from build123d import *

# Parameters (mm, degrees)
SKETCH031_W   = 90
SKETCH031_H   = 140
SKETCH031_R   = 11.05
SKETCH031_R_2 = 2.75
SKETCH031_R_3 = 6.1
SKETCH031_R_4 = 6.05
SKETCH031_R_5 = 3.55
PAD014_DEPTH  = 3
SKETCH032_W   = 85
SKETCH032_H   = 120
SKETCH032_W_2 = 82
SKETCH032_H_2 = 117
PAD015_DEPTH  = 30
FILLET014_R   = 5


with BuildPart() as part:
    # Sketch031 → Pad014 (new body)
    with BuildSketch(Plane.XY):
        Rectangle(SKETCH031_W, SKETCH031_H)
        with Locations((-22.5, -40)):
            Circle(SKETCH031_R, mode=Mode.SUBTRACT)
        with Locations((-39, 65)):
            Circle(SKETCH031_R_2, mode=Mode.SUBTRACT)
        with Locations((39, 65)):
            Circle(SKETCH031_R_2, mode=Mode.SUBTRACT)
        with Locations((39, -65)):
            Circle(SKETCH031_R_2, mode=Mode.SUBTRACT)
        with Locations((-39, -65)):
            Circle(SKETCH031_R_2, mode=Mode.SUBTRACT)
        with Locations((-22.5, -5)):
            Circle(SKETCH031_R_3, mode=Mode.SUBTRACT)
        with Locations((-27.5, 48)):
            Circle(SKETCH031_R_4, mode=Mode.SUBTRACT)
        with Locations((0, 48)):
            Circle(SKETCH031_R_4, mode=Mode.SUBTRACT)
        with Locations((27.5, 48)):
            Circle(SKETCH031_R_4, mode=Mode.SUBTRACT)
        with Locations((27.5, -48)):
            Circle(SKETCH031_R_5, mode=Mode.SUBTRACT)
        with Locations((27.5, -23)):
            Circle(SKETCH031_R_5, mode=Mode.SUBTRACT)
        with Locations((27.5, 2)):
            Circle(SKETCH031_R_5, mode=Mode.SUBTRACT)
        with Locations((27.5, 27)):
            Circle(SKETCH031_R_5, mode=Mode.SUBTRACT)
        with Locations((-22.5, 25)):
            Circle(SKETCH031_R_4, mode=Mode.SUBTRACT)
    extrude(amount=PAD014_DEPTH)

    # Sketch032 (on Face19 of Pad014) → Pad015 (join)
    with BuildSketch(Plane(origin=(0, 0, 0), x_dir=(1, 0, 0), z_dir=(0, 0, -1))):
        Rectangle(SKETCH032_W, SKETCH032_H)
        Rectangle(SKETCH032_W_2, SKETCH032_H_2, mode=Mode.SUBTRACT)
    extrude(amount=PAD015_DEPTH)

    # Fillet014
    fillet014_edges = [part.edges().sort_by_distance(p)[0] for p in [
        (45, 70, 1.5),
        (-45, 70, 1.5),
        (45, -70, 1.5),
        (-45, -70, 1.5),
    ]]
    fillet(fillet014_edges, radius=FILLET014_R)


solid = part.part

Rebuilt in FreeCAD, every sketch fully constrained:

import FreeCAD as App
import Part
import Sketcher

V = App.Vector


def edges_at(feature, points):
    """Names of the edges that pass closest to the given points."""
    edges = feature.Shape.Edges
    near = lambda p: min(range(len(edges)), key=lambda i: edges[i].distToShape(Part.Vertex(*p))[0])
    return sorted({f"Edge{near(p) + 1}" for p in points})

doc = App.newDocument("Part")
body = doc.addObject("PartDesign::Body", "Body")

sketch1 = body.newObject("Sketcher::SketchObject", "Sketch")
sketch1.AttachmentSupport = (doc.getObject("XY_Plane"), [""])
sketch1.MapMode = "FlatFace"
sketch1.addGeometry([
    Part.LineSegment(V(-45, 70, 0), V(-45, -70, 0)),
    Part.LineSegment(V(-45, -70, 0), V(45, -70, 0)),
    Part.LineSegment(V(45, -70, 0), V(45, 70, 0)),
    Part.LineSegment(V(45, 70, 0), V(-45, 70, 0)),
    Part.Circle(V(-39, -65, 0), V(0, 0, 1), 2.8),
    Part.Circle(V(-22.5, -40, 0), V(0, 0, 1), 11.1),
    Part.Circle(V(-22.5, -5, 0), V(0, 0, 1), 6.1),
    Part.Circle(V(39, -65, 0), V(0, 0, 1), 2.8),
    Part.Circle(V(27.5, -48, 0), V(0, 0, 1), 3.5),
    Part.Circle(V(27.5, -23, 0), V(0, 0, 1), 3.5),
    Part.Circle(V(-22.5, 25, 0), V(0, 0, 1), 6),
    Part.Circle(V(-27.5, 48, 0), V(0, 0, 1), 6),
    Part.Circle(V(-39, 65, 0), V(0, 0, 1), 2.8),
    Part.Circle(V(27.5, 2, 0), V(0, 0, 1), 3.5),
    Part.Circle(V(27.5, 27, 0), V(0, 0, 1), 3.5),
    Part.Circle(V(0, 48, 0), V(0, 0, 1), 6),
    Part.Circle(V(27.5, 48, 0), V(0, 0, 1), 6),
    Part.Circle(V(39, 65, 0), V(0, 0, 1), 2.8),
], False)
sketch1.addConstraint([
    Sketcher.Constraint("Coincident", 0, 2, 1, 1),
    Sketcher.Constraint("Coincident", 1, 2, 2, 1),
    Sketcher.Constraint("Coincident", 2, 2, 3, 1),
    Sketcher.Constraint("Coincident", 3, 2, 0, 1),
    Sketcher.Constraint("Vertical", 0),
    Sketcher.Constraint("Horizontal", 1),
    Sketcher.Constraint("Vertical", 2),
    Sketcher.Constraint("Horizontal", 3),
    Sketcher.Constraint("Equal", 4, 7),
    Sketcher.Constraint("Equal", 8, 9),
    Sketcher.Constraint("Equal", 10, 11),
    Sketcher.Constraint("Equal", 7, 12),
    Sketcher.Constraint("Equal", 9, 13),
    Sketcher.Constraint("Equal", 13, 14),
    Sketcher.Constraint("Equal", 11, 15),
    Sketcher.Constraint("Equal", 15, 16),
    Sketcher.Constraint("Equal", 12, 17),
    Sketcher.Constraint("Symmetric", 8, 3, 11, 3, -1, 1),
    Sketcher.Constraint("Symmetric", 7, 3, 12, 3, -1, 1),
    Sketcher.Constraint("Symmetric", 4, 3, 17, 3, -1, 1),
    Sketcher.Constraint("Symmetric", 0, 2, 2, 2, -1, 1),
    Sketcher.Constraint("Symmetric", 4, 3, 7, 3, -2),
    Sketcher.Constraint("Symmetric", 11, 3, 16, 3, -2),
    Sketcher.Constraint("PointOnObject", 15, 3, -2),
    Sketcher.Constraint("Horizontal", 11, 3, 15, 3),
    Sketcher.Constraint("Vertical", 5, 3, 6, 3),
    Sketcher.Constraint("Vertical", 8, 3, 9, 3),
    Sketcher.Constraint("Vertical", 6, 3, 10, 3),
    Sketcher.Constraint("Vertical", 9, 3, 13, 3),
    Sketcher.Constraint("Vertical", 13, 3, 14, 3),
    Sketcher.Constraint("Diameter", 4, 5.5),
    Sketcher.Constraint("Diameter", 5, 22.1),
    Sketcher.Constraint("Diameter", 6, 12.2),
    Sketcher.Constraint("Diameter", 8, 7.1),
    Sketcher.Constraint("Diameter", 10, 12.1),
    Sketcher.Constraint("DistanceX", 1, 1, 1, 2, 90.0),
    Sketcher.Constraint("DistanceY", 0, 2, 0, 1, 140.0),
    Sketcher.Constraint("DistanceX", 4, 3, -1, 1, 39.0),
    Sketcher.Constraint("DistanceY", 4, 3, -1, 1, 65.0),
    Sketcher.Constraint("DistanceY", 5, 3, -1, 1, 40.0),
    Sketcher.Constraint("DistanceY", 6, 3, -1, 1, 5.0),
    Sketcher.Constraint("DistanceY", 8, 3, -1, 1, 48.0),
    Sketcher.Constraint("DistanceY", 9, 3, -1, 1, 23.0),
    Sketcher.Constraint("DistanceY", -1, 1, 10, 3, 25.0),
    Sketcher.Constraint("DistanceY", -1, 1, 13, 3, 2.0),
    Sketcher.Constraint("DistanceY", -1, 1, 14, 3, 27.0),
    Sketcher.Constraint("DistanceX", 5, 3, 8, 3, 50.0),
    Sketcher.Constraint("DistanceX", 11, 3, 10, 3, 5.0),
])
pad1 = body.newObject("PartDesign::Pad", "Pad")
pad1.Profile = sketch1
pad1.Length = 3

sketch2 = body.newObject("Sketcher::SketchObject", "Sketch001")
sketch2.AttachmentSupport = (doc.getObject("XY_Plane"), [""])
sketch2.MapMode = "FlatFace"
sketch2.addGeometry([
    Part.LineSegment(V(-42, -60, 0), V(-42, 60, 0)),
    Part.LineSegment(V(-42, 60, 0), V(42, 60, 0)),
    Part.LineSegment(V(42, 60, 0), V(42, -60, 0)),
    Part.LineSegment(V(42, -60, 0), V(-42, -60, 0)),
    Part.LineSegment(V(41, 58, 0), V(-41, 58, 0)),
    Part.LineSegment(V(-41, 58, 0), V(-41, -58, 0)),
    Part.LineSegment(V(-41, -58, 0), V(41, -58, 0)),
    Part.LineSegment(V(41, -58, 0), V(41, 58, 0)),
], False)
sketch2.addConstraint([
    Sketcher.Constraint("Coincident", 0, 2, 1, 1),
    Sketcher.Constraint("Coincident", 1, 2, 2, 1),
    Sketcher.Constraint("Coincident", 2, 2, 3, 1),
    Sketcher.Constraint("Coincident", 3, 2, 0, 1),
    Sketcher.Constraint("Coincident", 4, 2, 5, 1),
    Sketcher.Constraint("Coincident", 5, 2, 6, 1),
    Sketcher.Constraint("Coincident", 6, 2, 7, 1),
    Sketcher.Constraint("Coincident", 7, 2, 4, 1),
    Sketcher.Constraint("Vertical", 0),
    Sketcher.Constraint("Horizontal", 1),
    Sketcher.Constraint("Vertical", 2),
    Sketcher.Constraint("Horizontal", 3),
    Sketcher.Constraint("Horizontal", 4),
    Sketcher.Constraint("Vertical", 5),
    Sketcher.Constraint("Horizontal", 6),
    Sketcher.Constraint("Vertical", 7),
    Sketcher.Constraint("Symmetric", 0, 2, 2, 2, -1, 1),
    Sketcher.Constraint("Symmetric", 4, 2, 6, 2, -1, 1),
    Sketcher.Constraint("DistanceX", 1, 1, 1, 2, 85.0),
    Sketcher.Constraint("DistanceX", 4, 2, 4, 1, 82.0),
    Sketcher.Constraint("DistanceY", 0, 1, 0, 2, 120.0),
    Sketcher.Constraint("DistanceY", 5, 2, 5, 1, 117.0),
])
pad2 = body.newObject("PartDesign::Pad", "Pad001")
pad2.Profile = sketch2
pad2.Length = 30
pad2.Reversed = True
doc.recompute()

fillet = body.newObject("PartDesign::Fillet", "Fillet")
fillet.Base = (pad2, edges_at(pad2, [
    (45, 70, 1.5),
    (-45, 70, 1.5),
    (45, -70, 1.5),
    (-45, -70, 1.5),
]))
fillet.Radius = 5

doc.recompute()
